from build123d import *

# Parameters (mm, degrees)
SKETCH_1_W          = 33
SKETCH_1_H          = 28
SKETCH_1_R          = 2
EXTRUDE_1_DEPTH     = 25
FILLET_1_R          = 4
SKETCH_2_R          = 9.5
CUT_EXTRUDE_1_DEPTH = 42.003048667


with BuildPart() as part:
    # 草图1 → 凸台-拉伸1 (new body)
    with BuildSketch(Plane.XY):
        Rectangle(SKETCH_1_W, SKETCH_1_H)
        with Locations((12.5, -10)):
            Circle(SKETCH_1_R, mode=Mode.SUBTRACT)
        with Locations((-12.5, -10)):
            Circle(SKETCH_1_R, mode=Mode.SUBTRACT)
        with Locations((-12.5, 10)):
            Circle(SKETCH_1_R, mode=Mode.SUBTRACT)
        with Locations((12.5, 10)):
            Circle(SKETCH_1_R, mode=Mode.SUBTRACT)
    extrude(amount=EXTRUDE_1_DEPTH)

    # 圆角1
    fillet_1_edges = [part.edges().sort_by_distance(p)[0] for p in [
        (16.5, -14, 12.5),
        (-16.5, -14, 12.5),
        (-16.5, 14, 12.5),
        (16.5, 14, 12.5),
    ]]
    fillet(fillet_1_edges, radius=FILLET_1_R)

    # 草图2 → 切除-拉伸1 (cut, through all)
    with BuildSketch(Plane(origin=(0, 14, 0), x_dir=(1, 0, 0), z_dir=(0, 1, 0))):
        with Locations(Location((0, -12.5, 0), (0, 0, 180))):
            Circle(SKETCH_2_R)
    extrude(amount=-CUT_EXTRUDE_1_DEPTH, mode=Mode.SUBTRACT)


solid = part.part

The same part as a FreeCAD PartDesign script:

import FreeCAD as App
import Part
import Sketcher

V = App.Vector


def edges_at(feature, points):
    """Names of the edges that pass closest to the given points."""
    edges = feature.Shape.Edges
    near = lambda p: min(range(len(edges)), key=lambda i: edges[i].distToShape(Part.Vertex(*p))[0])
    return sorted({f"Edge{near(p) + 1}" for p in points})

doc = App.newDocument("Part")
body = doc.addObject("PartDesign::Body", "Body")

# Sketch on XY plane
sketch1 = doc.addObject("Sketcher::SketchObject", "Sketch")
body.addObject(sketch1)
sketch1.AttachmentSupport = (doc.XY_Plane, [""])
sketch1.MapMode = "FlatFace"
sketch1.addGeometry([
    Part.LineSegment(V(-16.5, 14, 0), V(-16.5, -14, 0)),  # 0
    Part.LineSegment(V(-16.5, -14, 0), V(16.5, -14, 0)),  # 1
    Part.LineSegment(V(16.5, -14, 0), V(16.5, 14, 0)),  # 2
    Part.LineSegment(V(16.5, 14, 0), V(-16.5, 14, 0)),  # 3
    Part.Circle(V(-12.5, -10, 0), V(0, 0, 1), 2),  # 4
    Part.Circle(V(12.5, -10, 0), V(0, 0, 1), 2),  # 5
    Part.Circle(V(-12.5, 10, 0), V(0, 0, 1), 2),  # 6
    Part.Circle(V(12.5, 10, 0), V(0, 0, 1), 2),  # 7
], False)
sketch1.addConstraint([
    Sketcher.Constraint("Coincident", 0, 2, 1, 1),
    Sketcher.Constraint("Coincident", 1, 2, 2, 1),
    Sketcher.Constraint("Coincident", 2, 2, 3, 1),
    Sketcher.Constraint("Coincident", 3, 2, 0, 1),
    Sketcher.Constraint("Vertical", 0),
    Sketcher.Constraint("Horizontal", 1),
    Sketcher.Constraint("Vertical", 2),
    Sketcher.Constraint("Horizontal", 3),
    Sketcher.Constraint("Equal", 4, 5),
    Sketcher.Constraint("Equal", 5, 6),
    Sketcher.Constraint("Equal", 6, 7),
    Sketcher.Constraint("Symmetric", 5, 3, 6, 3, -1, 1),
    Sketcher.Constraint("Symmetric", 4, 3, 7, 3, -1, 1),
    Sketcher.Constraint("Symmetric", 0, 2, 2, 2, -1, 1),
    Sketcher.Constraint("Symmetric", 4, 3, 5, 3, -2),
    Sketcher.Constraint("Diameter", 4, 4.0),
    Sketcher.Constraint("DistanceX", 1, 1, 1, 2, 33.0),
    Sketcher.Constraint("DistanceY", 0, 2, 0, 1, 28.0),
    Sketcher.Constraint("DistanceY", 4, 3, -1, 1, 10.0),
    Sketcher.Constraint("DistanceX", 4, 3, 5, 3, 25.0),
])
pad1 = doc.addObject("PartDesign::Pad", "Pad")
body.addObject(pad1)
pad1.Profile = sketch1
pad1.Length = 25
doc.recompute()

fillet = doc.addObject("PartDesign::Fillet", "Fillet")
body.addObject(fillet)
fillet.Base = (pad1, edges_at(pad1, [
    (16.5, -14, 12.5),
    (-16.5, -14, 12.5),
    (-16.5, 14, 12.5),
    (16.5, 14, 12.5),
]))
fillet.Radius = 4

# Sketch on XZ plane
sketch2 = doc.addObject("Sketcher::SketchObject", "Sketch001")
body.addObject(sketch2)
sketch2.AttachmentSupport = (doc.XZ_Plane, [""])
sketch2.MapMode = "FlatFace"
sketch2.AttachmentOffset = App.Placement(V(0, 0, -14), App.Rotation())
sketch2.addGeometry(Part.Circle(V(0, 12.5, 0), V(0, 0, 1), 9.5), False)
sketch2.addConstraint([
    Sketcher.Constraint("PointOnObject", 0, 3, -2),
    Sketcher.Constraint("Diameter", 0, 19.0),
    Sketcher.Constraint("DistanceY", -1, 1, 0, 3, 12.5),
])
pocket1 = doc.addObject("PartDesign::Pocket", "Pocket")
body.addObject(pocket1)
pocket1.Profile = sketch2
pocket1.Type = "ThroughAll"
pocket1.Reversed = True

doc.recompute()
